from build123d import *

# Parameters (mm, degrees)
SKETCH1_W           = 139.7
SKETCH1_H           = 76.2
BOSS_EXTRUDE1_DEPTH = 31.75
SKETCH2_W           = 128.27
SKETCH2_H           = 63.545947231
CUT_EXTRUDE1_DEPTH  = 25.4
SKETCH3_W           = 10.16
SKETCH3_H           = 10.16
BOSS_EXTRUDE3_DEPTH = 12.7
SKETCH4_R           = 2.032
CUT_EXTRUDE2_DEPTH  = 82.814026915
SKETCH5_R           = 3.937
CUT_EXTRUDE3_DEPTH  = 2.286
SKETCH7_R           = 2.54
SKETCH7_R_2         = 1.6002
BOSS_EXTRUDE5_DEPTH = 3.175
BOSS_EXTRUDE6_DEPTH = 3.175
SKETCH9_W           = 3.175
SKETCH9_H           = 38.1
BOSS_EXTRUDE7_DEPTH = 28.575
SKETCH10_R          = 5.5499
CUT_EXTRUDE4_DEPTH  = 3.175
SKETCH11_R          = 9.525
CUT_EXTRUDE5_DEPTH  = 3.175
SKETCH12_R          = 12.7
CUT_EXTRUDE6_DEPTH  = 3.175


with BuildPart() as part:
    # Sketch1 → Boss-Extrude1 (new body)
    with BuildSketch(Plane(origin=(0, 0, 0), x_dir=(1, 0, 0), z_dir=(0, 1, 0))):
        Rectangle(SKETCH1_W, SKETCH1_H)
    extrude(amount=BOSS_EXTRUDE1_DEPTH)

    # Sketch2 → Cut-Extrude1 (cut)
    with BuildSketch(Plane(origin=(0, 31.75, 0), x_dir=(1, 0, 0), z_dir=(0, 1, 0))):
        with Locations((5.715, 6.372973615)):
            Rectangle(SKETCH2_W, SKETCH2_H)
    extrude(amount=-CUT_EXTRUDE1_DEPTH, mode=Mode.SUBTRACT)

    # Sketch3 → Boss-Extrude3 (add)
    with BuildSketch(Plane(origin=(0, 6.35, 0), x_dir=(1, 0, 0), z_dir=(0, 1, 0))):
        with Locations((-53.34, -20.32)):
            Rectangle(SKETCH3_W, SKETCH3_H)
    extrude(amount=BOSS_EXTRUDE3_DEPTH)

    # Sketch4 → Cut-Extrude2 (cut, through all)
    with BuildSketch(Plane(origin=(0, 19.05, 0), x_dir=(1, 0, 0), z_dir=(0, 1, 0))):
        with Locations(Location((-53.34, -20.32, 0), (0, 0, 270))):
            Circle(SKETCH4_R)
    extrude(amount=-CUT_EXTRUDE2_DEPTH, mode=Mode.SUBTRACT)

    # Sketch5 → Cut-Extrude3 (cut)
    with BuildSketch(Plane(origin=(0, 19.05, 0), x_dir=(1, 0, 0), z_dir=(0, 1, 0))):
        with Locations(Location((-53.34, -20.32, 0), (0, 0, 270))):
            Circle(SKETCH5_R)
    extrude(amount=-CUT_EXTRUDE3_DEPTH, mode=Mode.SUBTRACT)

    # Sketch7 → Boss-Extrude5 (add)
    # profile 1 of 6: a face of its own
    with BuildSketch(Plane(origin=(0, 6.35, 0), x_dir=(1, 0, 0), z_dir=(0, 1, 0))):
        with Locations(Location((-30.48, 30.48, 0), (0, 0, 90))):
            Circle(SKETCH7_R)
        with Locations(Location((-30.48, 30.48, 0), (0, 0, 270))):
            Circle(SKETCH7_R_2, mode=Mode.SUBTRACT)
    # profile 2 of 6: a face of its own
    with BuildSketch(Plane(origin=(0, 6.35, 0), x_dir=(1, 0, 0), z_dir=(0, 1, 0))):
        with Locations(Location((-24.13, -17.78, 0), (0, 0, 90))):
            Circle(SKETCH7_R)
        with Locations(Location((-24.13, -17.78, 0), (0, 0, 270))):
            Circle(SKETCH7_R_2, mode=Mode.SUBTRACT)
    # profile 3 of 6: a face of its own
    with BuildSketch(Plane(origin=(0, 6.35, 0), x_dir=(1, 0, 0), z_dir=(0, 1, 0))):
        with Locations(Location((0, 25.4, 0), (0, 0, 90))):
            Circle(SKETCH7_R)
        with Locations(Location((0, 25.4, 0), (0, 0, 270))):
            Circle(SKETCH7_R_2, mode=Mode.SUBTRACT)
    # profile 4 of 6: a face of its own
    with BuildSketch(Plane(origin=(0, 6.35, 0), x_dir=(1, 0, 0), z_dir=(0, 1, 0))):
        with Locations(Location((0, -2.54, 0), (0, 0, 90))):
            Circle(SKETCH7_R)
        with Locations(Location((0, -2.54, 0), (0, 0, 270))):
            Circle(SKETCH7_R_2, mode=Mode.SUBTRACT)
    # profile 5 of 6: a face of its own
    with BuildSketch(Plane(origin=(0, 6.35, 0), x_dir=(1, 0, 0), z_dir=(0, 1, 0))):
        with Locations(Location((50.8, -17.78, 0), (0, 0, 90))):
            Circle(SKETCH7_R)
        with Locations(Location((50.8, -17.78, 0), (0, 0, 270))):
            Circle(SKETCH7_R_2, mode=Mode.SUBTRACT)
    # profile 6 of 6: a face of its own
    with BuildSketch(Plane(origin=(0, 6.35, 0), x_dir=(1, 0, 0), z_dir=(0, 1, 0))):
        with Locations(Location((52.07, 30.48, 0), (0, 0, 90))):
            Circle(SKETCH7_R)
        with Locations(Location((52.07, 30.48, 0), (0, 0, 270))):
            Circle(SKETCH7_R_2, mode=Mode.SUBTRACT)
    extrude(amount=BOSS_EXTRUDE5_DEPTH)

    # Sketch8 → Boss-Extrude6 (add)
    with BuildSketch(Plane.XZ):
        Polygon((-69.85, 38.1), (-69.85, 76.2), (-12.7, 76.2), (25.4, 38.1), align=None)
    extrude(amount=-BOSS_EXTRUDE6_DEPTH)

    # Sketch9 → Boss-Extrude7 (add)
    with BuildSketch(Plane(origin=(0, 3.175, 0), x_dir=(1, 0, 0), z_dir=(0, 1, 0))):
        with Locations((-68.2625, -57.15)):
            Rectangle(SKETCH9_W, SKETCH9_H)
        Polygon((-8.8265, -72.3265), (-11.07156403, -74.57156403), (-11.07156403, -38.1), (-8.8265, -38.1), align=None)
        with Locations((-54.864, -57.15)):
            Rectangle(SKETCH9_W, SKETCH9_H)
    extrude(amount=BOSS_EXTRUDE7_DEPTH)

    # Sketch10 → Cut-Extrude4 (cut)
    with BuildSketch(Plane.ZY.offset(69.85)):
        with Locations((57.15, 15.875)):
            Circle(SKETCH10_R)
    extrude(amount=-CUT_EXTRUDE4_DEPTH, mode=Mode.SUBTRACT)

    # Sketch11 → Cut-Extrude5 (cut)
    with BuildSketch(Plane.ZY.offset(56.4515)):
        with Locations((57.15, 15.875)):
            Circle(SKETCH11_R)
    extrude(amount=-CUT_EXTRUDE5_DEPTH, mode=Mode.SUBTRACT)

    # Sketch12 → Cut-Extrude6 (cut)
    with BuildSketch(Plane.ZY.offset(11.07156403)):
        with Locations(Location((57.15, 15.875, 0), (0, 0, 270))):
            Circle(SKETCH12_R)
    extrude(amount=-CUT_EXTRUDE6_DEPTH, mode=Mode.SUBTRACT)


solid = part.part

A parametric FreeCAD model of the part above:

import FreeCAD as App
import Part
import Sketcher
Q = App.Units.Quantity

doc = App.newDocument("Part")
body = doc.addObject("PartDesign::Body", "Body")

# Sketch on XZ plane
sketch1 = body.newObject("Sketcher::SketchObject", "Sketch")
sketch1.AttachmentSupport = (doc.getObject("XZ_Plane"), [""])
sketch1.MapMode = "FlatFace"
sketch1.addGeometry([
    Part.LineSegment(App.Vector(-69.85, -38.1, 0), App.Vector(-69.85, 38.1, 0)),
    Part.LineSegment(App.Vector(-69.85, 38.1, 0), App.Vector(69.85, 38.1, 0)),
    Part.LineSegment(App.Vector(69.85, 38.1, 0), App.Vector(69.85, -38.1, 0)),
    Part.LineSegment(App.Vector(69.85, -38.1, 0), App.Vector(-69.85, -38.1, 0)),
], False)
sketch1.addConstraint([
    Sketcher.Constraint("Coincident", 0, 2, 1, 1),
    Sketcher.Constraint("Coincident", 1, 2, 2, 1),
    Sketcher.Constraint("Coincident", 2, 2, 3, 1),
    Sketcher.Constraint("Coincident", 3, 2, 0, 1),
    Sketcher.Constraint("Vertical", 0),
    Sketcher.Constraint("Horizontal", 1),
    Sketcher.Constraint("Vertical", 2),
    Sketcher.Constraint("Horizontal", 3),
    Sketcher.Constraint("Symmetric", 0, 2, 2, 2, -1, 1),
    Sketcher.Constraint("DistanceY", 0, 1, 0, 2, Q("3 in")),
    Sketcher.Constraint("DistanceX", 1, 1, 1, 2, Q("5.5 in")),
])
pad1 = body.newObject("PartDesign::Pad", "Pad")
pad1.Profile = sketch1
pad1.Length = Q("1.25 in")
pad1.Reversed = True

# Sketch on XZ plane
sketch2 = body.newObject("Sketcher::SketchObject", "Sketch001")
sketch2.AttachmentSupport = (doc.getObject("XZ_Plane"), [""])
sketch2.MapMode = "FlatFace"
sketch2.AttachmentOffset = App.Placement(App.Vector(0, 0, -1.25 * 25.4), App.Rotation())
sketch2.addGeometry([
    Part.LineSegment(App.Vector(-58.42, -38.145947, 0), App.Vector(-58.42, 25.4, 0)),
    Part.LineSegment(App.Vector(-58.42, 25.4, 0), App.Vector(69.85, 25.4, 0)),
    Part.LineSegment(App.Vector(69.85, 25.4, 0), App.Vector(69.85, -38.145947, 0)),
    Part.LineSegment(App.Vector(69.85, -38.145947, 0), App.Vector(-58.42, -38.145947, 0)),
], False)
sketch2.addConstraint([
    Sketcher.Constraint("Coincident", 0, 2, 1, 1),
    Sketcher.Constraint("Coincident", 1, 2, 2, 1),
    Sketcher.Constraint("Coincident", 2, 2, 3, 1),
    Sketcher.Constraint("Coincident", 3, 2, 0, 1),
    Sketcher.Constraint("Vertical", 0),
    Sketcher.Constraint("Horizontal", 1),
    Sketcher.Constraint("Vertical", 2),
    Sketcher.Constraint("Horizontal", 3),
    Sketcher.Constraint("DistanceY", -1, 1, 0, 2, Q("1 in")),
    Sketcher.Constraint("DistanceX", 1, 1, 1, 2, Q("5.05 in")),
    Sketcher.Constraint("DistanceX", 0, 2, -1, 1, Q("2.3 in")),
    Sketcher.Constraint("DistanceY", 0, 1, 0, 2, Q("63.545947 mm")),
])
pocket1 = body.newObject("PartDesign::Pocket", "Pocket")
pocket1.Profile = sketch2
pocket1.Length = Q("1 in")
pocket1.Reversed = True

# Sketch on XZ plane
sketch3 = body.newObject("Sketcher::SketchObject", "Sketch002")
sketch3.AttachmentSupport = (doc.getObject("XZ_Plane"), [""])
sketch3.MapMode = "FlatFace"
sketch3.AttachmentOffset = App.Placement(App.Vector(0, 0, -0.25 * 25.4), App.Rotation())
sketch3.addGeometry([
    Part.LineSegment(App.Vector(-58.42, 15.24, 0), App.Vector(-58.42, 25.4, 0)),
    Part.LineSegment(App.Vector(-58.42, 25.4, 0), App.Vector(-48.26, 25.4, 0)),
    Part.LineSegment(App.Vector(-48.26, 25.4, 0), App.Vector(-48.26, 15.24, 0)),
    Part.LineSegment(App.Vector(-48.26, 15.24, 0), App.Vector(-58.42, 15.24, 0)),
], False)
sketch3.addConstraint([
    Sketcher.Constraint("Coincident", 0, 2, 1, 1),
    Sketcher.Constraint("Coincident", 1, 2, 2, 1),
    Sketcher.Constraint("Coincident", 2, 2, 3, 1),
    Sketcher.Constraint("Coincident", 3, 2, 0, 1),
    Sketcher.Constraint("Vertical", 0),
    Sketcher.Constraint("Horizontal", 1),
    Sketcher.Constraint("Vertical", 2),
    Sketcher.Constraint("Horizontal", 3),
    Sketcher.Constraint("Equal", 3, 0),
    Sketcher.Constraint("DistanceX", 1, 1, 1, 2, Q("0.4 in")),
    Sketcher.Constraint("DistanceY", -1, 1, 0, 2, Q("1 in")),
    Sketcher.Constraint("DistanceX", 0, 2, -1, 1, Q("2.3 in")),
])
pad2 = body.newObject("PartDesign::Pad", "Pad001")
pad2.Profile = sketch3
pad2.Length = Q("0.5 in")
pad2.Reversed = True

# Sketch on XZ plane
sketch4 = body.newObject("Sketcher::SketchObject", "Sketch003")
sketch4.AttachmentSupport = (doc.getObject("XZ_Plane"), [""])
sketch4.MapMode = "FlatFace"
sketch4.AttachmentOffset = App.Placement(App.Vector(0, 0, -0.75 * 25.4), App.Rotation())
sketch4.addGeometry(Part.Circle(App.Vector(-53.34, 20.32, 0), App.Vector(0, 0, 1), 2.032), False)
sketch4.addConstraint([
    Sketcher.Constraint("Diameter", 0, Q("0.16 in")),
    Sketcher.Constraint("DistanceX", 0, 3, -1, 1, Q("2.1 in")),
    Sketcher.Constraint("DistanceY", -1, 1, 0, 3, Q("0.8 in")),
])
pocket2 = body.newObject("PartDesign::Pocket", "Pocket001")
pocket2.Profile = sketch4
pocket2.Type = "ThroughAll"
pocket2.Reversed = True

# Sketch on XZ plane
sketch5 = body.newObject("Sketcher::SketchObject", "Sketch004")
sketch5.AttachmentSupport = (doc.getObject("XZ_Plane"), [""])
sketch5.MapMode = "FlatFace"
sketch5.AttachmentOffset = App.Placement(App.Vector(0, 0, -0.75 * 25.4), App.Rotation())
sketch5.addGeometry(Part.Circle(App.Vector(-53.34, 20.32, 0), App.Vector(0, 0, 1), 3.937), False)
sketch5.addConstraint([
    Sketcher.Constraint("Diameter", 0, Q("0.31 in")),
    Sketcher.Constraint("DistanceX", 0, 3, -1, 1, Q("2.1 in")),
    Sketcher.Constraint("DistanceY", -1, 1, 0, 3, Q("0.8 in")),
])
pocket3 = body.newObject("PartDesign::Pocket", "Pocket002")
pocket3.Profile = sketch5
pocket3.Length = Q("0.09 in")
pocket3.Reversed = True

# Sketch on XZ plane
sketch6 = body.newObject("Sketcher::SketchObject", "Sketch005")
sketch6.AttachmentSupport = (doc.getObject("XZ_Plane"), [""])
sketch6.MapMode = "FlatFace"
sketch6.AttachmentOffset = App.Placement(App.Vector(0, 0, -0.25 * 25.4), App.Rotation())
sketch6.addGeometry([
    Part.Circle(App.Vector(-30.48, -30.48, 0), App.Vector(0, 0, 1), 2.54),  # 0
    Part.Circle(App.Vector(-30.48, -30.48, 0), App.Vector(0, 0, 1), 1.6002),  # 1
    Part.Circle(App.Vector(-24.13, 17.78, 0), App.Vector(0, 0, 1), 2.54),  # 2
    Part.Circle(App.Vector(-24.13, 17.78, 0), App.Vector(0, 0, 1), 1.6002),  # 3
    Part.Circle(App.Vector(0, -25.4, 0), App.Vector(0, 0, 1), 2.54),  # 4
    Part.Circle(App.Vector(0, -25.4, 0), App.Vector(0, 0, 1), 1.6002),  # 5
    Part.Circle(App.Vector(0, 2.54, 0), App.Vector(0, 0, 1), 2.54),  # 6
    Part.Circle(App.Vector(0, 2.54, 0), App.Vector(0, 0, 1), 1.6002),  # 7
    Part.Circle(App.Vector(50.8, 17.78, 0), App.Vector(0, 0, 1), 2.54),  # 8
    Part.Circle(App.Vector(50.8, 17.78, 0), App.Vector(0, 0, 1), 1.6002),  # 9
    Part.Circle(App.Vector(52.07, -30.48, 0), App.Vector(0, 0, 1), 2.54),  # 10
    Part.Circle(App.Vector(52.07, -30.48, 0), App.Vector(0, 0, 1), 1.6002),  # 11
], False)
sketch6.addConstraint([
    Sketcher.Constraint("Coincident", 1, 3, 0, 3),
    Sketcher.Constraint("Coincident", 3, 3, 2, 3),
    Sketcher.Constraint("Coincident", 5, 3, 4, 3),
    Sketcher.Constraint("Coincident", 7, 3, 6, 3),
    Sketcher.Constraint("Coincident", 9, 3, 8, 3),
    Sketcher.Constraint("Coincident", 11, 3, 10, 3),
    Sketcher.Constraint("Equal", 0, 2),
    Sketcher.Constraint("Equal", 1, 3),
    Sketcher.Constraint("Equal", 2, 4),
    Sketcher.Constraint("Equal", 3, 5),
    Sketcher.Constraint("Equal", 4, 6),
    Sketcher.Constraint("Equal", 5, 7),
    Sketcher.Constraint("Equal", 6, 8),
    Sketcher.Constraint("Equal", 7, 9),
    Sketcher.Constraint("Equal", 8, 10),
    Sketcher.Constraint("Equal", 9, 11),
    Sketcher.Constraint("PointOnObject", 4, 3, -2),
    Sketcher.Constraint("PointOnObject", 6, 3, -2),
    Sketcher.Constraint("Horizontal", 3, 3, 8, 3),
    Sketcher.Constraint("Horizontal", 1, 3, 10, 3),
    Sketcher.Constraint("Diameter", 0, Q("0.2 in")),
    Sketcher.Constraint("Diameter", 1, Q("0.126 in")),
    Sketcher.Constraint("DistanceY", 4, 3, -1, 1, Q("1 in")),
    Sketcher.Constraint("DistanceX", -1, 1, 8, 3, Q("2 in")),
    Sketcher.Constraint("DistanceX", 0, 3, -1, 1, Q("1.2 in")),
    Sketcher.Constraint("DistanceY", 0, 3, -1, 1, Q("1.2 in")),
    Sketcher.Constraint("DistanceY", -1, 1, 2, 3, Q("0.7 in")),
    Sketcher.Constraint("DistanceY", -1, 1, 6, 3, Q("0.1 in")),
    Sketcher.Constraint("DistanceX", 2, 3, -1, 1, Q("0.95 in")),
    Sketcher.Constraint("DistanceX", -1, 1, 10, 3, Q("2.05 in")),
])
pad3 = body.newObject("PartDesign::Pad", "Pad002")
pad3.Profile = sketch6
pad3.Length = Q("0.125 in")
pad3.Reversed = True

# Sketch on XZ plane
sketch7 = body.newObject("Sketcher::SketchObject", "Sketch006")
sketch7.AttachmentSupport = (doc.getObject("XZ_Plane"), [""])
sketch7.MapMode = "FlatFace"
sketch7.addGeometry([
    Part.LineSegment(App.Vector(-69.85, 76.2, 0), App.Vector(-69.85, 38.1, 0)),
    Part.LineSegment(App.Vector(-69.85, 38.1, 0), App.Vector(25.4, 38.1, 0)),
    Part.LineSegment(App.Vector(25.4, 38.1, 0), App.Vector(-12.7, 76.2, 0)),
    Part.LineSegment(App.Vector(-12.7, 76.2, 0), App.Vector(-69.85, 76.2, 0)),
], False)
sketch7.addConstraint([
    Sketcher.Constraint("Coincident", 0, 2, 1, 1),
    Sketcher.Constraint("Coincident", 1, 2, 2, 1),
    Sketcher.Constraint("Coincident", 2, 2, 3, 1),
    Sketcher.Constraint("Coincident", 3, 2, 0, 1),
    Sketcher.Constraint("Vertical", 0),
    Sketcher.Constraint("Horizontal", 1),
    Sketcher.Constraint("Horizontal", 3),
    Sketcher.Constraint("DistanceY", 0, 2, 0, 1, Q("1.5 in")),
    Sketcher.Constraint("DistanceX", -1, 1, 1, 2, Q("1 in")),
    Sketcher.Constraint("DistanceY", -1, 1, 2, 2, Q("3 in")),
    Sketcher.Constraint("Angle", 2, Q("135 deg")),
    Sketcher.Constraint("DistanceX", 1, 1, 1, 2, Q("3.75 in")),
])
pad4 = body.newObject("PartDesign::Pad", "Pad003")
pad4.Profile = sketch7
pad4.Length = Q("0.125 in")
pad4.Reversed = True

# Sketch on XZ plane
sketch8 = body.newObject("Sketcher::SketchObject", "Sketch007")
sketch8.AttachmentSupport = (doc.getObject("XZ_Plane"), [""])
sketch8.MapMode = "FlatFace"
sketch8.AttachmentOffset = App.Placement(App.Vector(0, 0, -0.125 * 25.4), App.Rotation())
sketch8.addGeometry([
    Part.LineSegment(App.Vector(-69.85, 38.1, 0), App.Vector(-69.85, 76.2, 0)),  # 0
    Part.LineSegment(App.Vector(-69.85, 76.2, 0), App.Vector(-66.675, 76.2, 0)),  # 1
    Part.LineSegment(App.Vector(-66.675, 76.2, 0), App.Vector(-66.675, 38.1, 0)),  # 2
    Part.LineSegment(App.Vector(-66.675, 38.1, 0), App.Vector(-69.85, 38.1, 0)),  # 3
    Part.LineSegment(App.Vector(-11.071564, 74.571564, 0), App.Vector(-8.8265, 72.3265, 0)),  # 4
    Part.LineSegment(App.Vector(-8.8265, 72.3265, 0), App.Vector(-8.8265, 38.1, 0)),  # 5
    Part.LineSegment(App.Vector(-8.8265, 38.1, 0), App.Vector(-11.071564, 38.1, 0)),  # 6
    Part.LineSegment(App.Vector(-11.071564, 38.1, 0), App.Vector(-11.071564, 74.571564, 0)),  # 7
    Part.LineSegment(App.Vector(-56.4515, 38.1, 0), App.Vector(-56.4515, 76.2, 0)),  # 8
    Part.LineSegment(App.Vector(-56.4515, 76.2, 0), App.Vector(-53.2765, 76.2, 0)),  # 9
    Part.LineSegment(App.Vector(-53.2765, 76.2, 0), App.Vector(-53.2765, 38.1, 0)),  # 10
    Part.LineSegment(App.Vector(-53.2765, 38.1, 0), App.Vector(-56.4515, 38.1, 0)),  # 11
], False)
sketch8.addConstraint([
    Sketcher.Constraint("Coincident", 0, 2, 1, 1),
    Sketcher.Constraint("Coincident", 1, 2, 2, 1),
    Sketcher.Constraint("Coincident", 2, 2, 3, 1),
    Sketcher.Constraint("Coincident", 3, 2, 0, 1),
    Sketcher.Constraint("Coincident", 4, 2, 5, 1),
    Sketcher.Constraint("Coincident", 5, 2, 6, 1),
    Sketcher.Constraint("Coincident", 6, 2, 7, 1),
    Sketcher.Constraint("Coincident", 7, 2, 4, 1),
    Sketcher.Constraint("Coincident", 8, 2, 9, 1),
    Sketcher.Constraint("Coincident", 9, 2, 10, 1),
    Sketcher.Constraint("Coincident", 10, 2, 11, 1),
    Sketcher.Constraint("Coincident", 11, 2, 8, 1),
    Sketcher.Constraint("Vertical", 0),
    Sketcher.Constraint("Horizontal", 1),
    Sketcher.Constraint("Vertical", 2),
    Sketcher.Constraint("Horizontal", 3),
    Sketcher.Constraint("Vertical", 5),
    Sketcher.Constraint("Horizontal", 6),
    Sketcher.Constraint("Vertical", 7),
    Sketcher.Constraint("Vertical", 8),
    Sketcher.Constraint("Horizontal", 9),
    Sketcher.Constraint("Vertical", 10),
    Sketcher.Constraint("Horizontal", 11),
    Sketcher.Constraint("Horizontal", 3, 2, 5, 2),
    Sketcher.Constraint("Horizontal", 1, 2, 8, 2),
    Sketcher.Constraint("Horizontal", 6, 2, 10, 2),
    Sketcher.Constraint("Equal", 3, 9),
    Sketcher.Constraint("DistanceY", 0, 1, 0, 2, Q("1.5 in")),
    Sketcher.Constraint("DistanceY", -1, 1, 0, 2, Q("3 in")),
    Sketcher.Constraint("Angle", 4, Q("-45 deg")),
    Sketcher.Constraint("DistanceX", 1, 1, 1, 2, Q("0.125 in")),
    Sketcher.Constraint("DistanceX", 0, 2, -1, 1, Q("2.75 in")),
    Sketcher.Constraint("Distance", 4, Q("0.125 in")),
    Sketcher.Constraint("DistanceY", 5, 2, 5, 1, Q("1.3475 in")),
    Sketcher.Constraint("DistanceX", 4, 2, -1, 1, Q("0.3475 in")),
    Sketcher.Constraint("DistanceX", 8, 2, -1, 1, Q("2.2225 in")),
])
pad5 = body.newObject("PartDesign::Pad", "Pad004")
pad5.Profile = sketch8
pad5.Length = Q("1.125 in")
pad5.Reversed = True

# Sketch on YZ plane
sketch9 = body.newObject("Sketcher::SketchObject", "Sketch008")
sketch9.AttachmentSupport = (doc.getObject("YZ_Plane"), [""])
sketch9.MapMode = "FlatFace"
sketch9.AttachmentOffset = App.Placement(App.Vector(0, 0, -2.75 * 25.4), App.Rotation())
sketch9.addGeometry(Part.Circle(App.Vector(15.875, 57.15, 0), App.Vector(0, 0, 1), 5.5499), False)
sketch9.addConstraint([
    Sketcher.Constraint("Diameter", 0, Q("0.437 in")),
    Sketcher.Constraint("DistanceY", -1, 1, 0, 3, Q("2.25 in")),
    Sketcher.Constraint("DistanceX", -1, 1, 0, 3, Q("0.625 in")),
])
pocket4 = body.newObject("PartDesign::Pocket", "Pocket003")
pocket4.Profile = sketch9
pocket4.Length = Q("0.125 in")
pocket4.Reversed = True

# Sketch on YZ plane
sketch10 = body.newObject("Sketcher::SketchObject", "Sketch009")
sketch10.AttachmentSupport = (doc.getObject("YZ_Plane"), [""])
sketch10.MapMode = "FlatFace"
sketch10.AttachmentOffset = App.Placement(App.Vector(0, 0, -2.2225 * 25.4), App.Rotation())
sketch10.addGeometry(Part.Circle(App.Vector(15.875, 57.15, 0), App.Vector(0, 0, 1), 9.525), False)
sketch10.addConstraint([
    Sketcher.Constraint("Diameter", 0, Q("0.75 in")),
    Sketcher.Constraint("DistanceY", -1, 1, 0, 3, Q("2.25 in")),
    Sketcher.Constraint("DistanceX", -1, 1, 0, 3, Q("0.625 in")),
])
pocket5 = body.newObject("PartDesign::Pocket", "Pocket004")
pocket5.Profile = sketch10
pocket5.Length = Q("0.125 in")
pocket5.Reversed = True

# Sketch on YZ plane
sketch11 = body.newObject("Sketcher::SketchObject", "Sketch010")
sketch11.AttachmentSupport = (doc.getObject("YZ_Plane"), [""])
sketch11.MapMode = "FlatFace"
sketch11.AttachmentOffset = App.Placement(App.Vector(0, 0, -11.071564), App.Rotation())
sketch11.addGeometry(Part.Circle(App.Vector(15.875, 57.15, 0), App.Vector(0, 0, 1), 12.7), False)
sketch11.addConstraint([
    Sketcher.Constraint("Diameter", 0, Q("1 in")),
    Sketcher.Constraint("DistanceY", -1, 1, 0, 3, Q("2.25 in")),
    Sketcher.Constraint("DistanceX", -1, 1, 0, 3, Q("0.625 in")),
])
pocket6 = body.newObject("PartDesign::Pocket", "Pocket005")
pocket6.Profile = sketch11
pocket6.Length = Q("0.125 in")
pocket6.Reversed = True

doc.recompute()
